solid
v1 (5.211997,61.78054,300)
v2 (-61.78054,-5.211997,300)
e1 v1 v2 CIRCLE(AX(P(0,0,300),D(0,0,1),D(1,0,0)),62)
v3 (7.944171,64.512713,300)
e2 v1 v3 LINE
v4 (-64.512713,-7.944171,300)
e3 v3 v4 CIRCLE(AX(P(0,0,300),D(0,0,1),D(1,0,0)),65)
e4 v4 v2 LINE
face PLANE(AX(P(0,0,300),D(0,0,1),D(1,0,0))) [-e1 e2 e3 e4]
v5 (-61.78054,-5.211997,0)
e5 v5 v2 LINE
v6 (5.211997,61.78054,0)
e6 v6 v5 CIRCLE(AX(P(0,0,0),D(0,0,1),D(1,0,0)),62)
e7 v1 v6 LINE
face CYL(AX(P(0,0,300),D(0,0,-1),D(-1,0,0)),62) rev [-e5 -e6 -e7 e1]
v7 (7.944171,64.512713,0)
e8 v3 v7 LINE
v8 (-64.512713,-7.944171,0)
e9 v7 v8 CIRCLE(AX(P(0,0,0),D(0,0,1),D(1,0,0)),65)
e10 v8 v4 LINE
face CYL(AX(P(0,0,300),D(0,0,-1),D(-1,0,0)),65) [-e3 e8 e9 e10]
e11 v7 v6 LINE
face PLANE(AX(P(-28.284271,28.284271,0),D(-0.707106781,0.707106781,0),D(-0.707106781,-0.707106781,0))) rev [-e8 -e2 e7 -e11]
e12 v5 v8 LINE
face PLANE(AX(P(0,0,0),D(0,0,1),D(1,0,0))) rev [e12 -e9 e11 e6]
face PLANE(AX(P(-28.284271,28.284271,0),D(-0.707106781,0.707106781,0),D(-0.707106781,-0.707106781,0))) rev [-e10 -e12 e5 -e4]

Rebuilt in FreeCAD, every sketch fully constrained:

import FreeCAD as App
import Part
import Sketcher

V = App.Vector


def add_polygon(sketch, points):
    """Adds a closed chain of lines whose ends are joined by coincident constraints."""
    first, n = sketch.GeometryCount, len(points)
    for a, b in zip(points, points[1:] + points[:1]):
        sketch.addGeometry(Part.LineSegment(App.Vector(*a, 0), App.Vector(*b, 0)), False)
    for i in range(n):
        sketch.addConstraint(Sketcher.Constraint("Coincident", first + i, 2, first + (i + 1) % n, 1))

doc = App.newDocument("Part")
body = doc.addObject("PartDesign::Body", "Body")

# Sketch on XY plane
sketch1 = body.newObject("Sketcher::SketchObject", "Sketch")
sketch1.AttachmentSupport = (doc.getObject("XY_Plane"), [""])
sketch1.MapMode = "FlatFace"
sketch1.addGeometry([
    Part.Circle(V(0, 0, 0), V(0, 0, 1), 65),
    Part.Circle(V(0, 0, 0), V(0, 0, 1), 62),
], False)
sketch1.addConstraint([
    Sketcher.Constraint("Coincident", 0, 3, -1, 1),
    Sketcher.Constraint("Coincident", 1, 3, -1, 1),
    Sketcher.Constraint("Diameter", 0, 130.0),
    Sketcher.Constraint("Diameter", 1, 124.0),
])
pad1 = body.newObject("PartDesign::Pad", "Pad")
pad1.Profile = sketch1
pad1.Length = 300

# Sketch on an angled plane
sketch2 = body.newObject("Sketcher::SketchObject", "Sketch001")
sketch2.Placement = App.Placement(V(-28.284271, 28.284271, 0), App.Rotation(V(0.707106781, 0.707106781, 0), V(0, 0, -0.999999999), V(-0.707106781, 0.707106781, 0), "ZXY"))
add_polygon(sketch2, [(-65, 0), (-65, -300), (65, -300), (65, 0)])  # lines 0-3
sketch2.addConstraint([
    Sketcher.Constraint("Vertical", 0),
    Sketcher.Constraint("Horizontal", 1),
    Sketcher.Constraint("Vertical", 2),
    Sketcher.Constraint("Horizontal", 3),
    Sketcher.Constraint("Symmetric", 2, 2, 3, 2, -1, 1),
    Sketcher.Constraint("DistanceX", 1, 1, 1, 2, 130.0),
    Sketcher.Constraint("DistanceY", 0, 2, 0, 1, 300.0),
])
pocket1 = body.newObject("PartDesign::Pocket", "Pocket")
pocket1.Profile = sketch2
pocket1.Length = 516

doc.recompute()
